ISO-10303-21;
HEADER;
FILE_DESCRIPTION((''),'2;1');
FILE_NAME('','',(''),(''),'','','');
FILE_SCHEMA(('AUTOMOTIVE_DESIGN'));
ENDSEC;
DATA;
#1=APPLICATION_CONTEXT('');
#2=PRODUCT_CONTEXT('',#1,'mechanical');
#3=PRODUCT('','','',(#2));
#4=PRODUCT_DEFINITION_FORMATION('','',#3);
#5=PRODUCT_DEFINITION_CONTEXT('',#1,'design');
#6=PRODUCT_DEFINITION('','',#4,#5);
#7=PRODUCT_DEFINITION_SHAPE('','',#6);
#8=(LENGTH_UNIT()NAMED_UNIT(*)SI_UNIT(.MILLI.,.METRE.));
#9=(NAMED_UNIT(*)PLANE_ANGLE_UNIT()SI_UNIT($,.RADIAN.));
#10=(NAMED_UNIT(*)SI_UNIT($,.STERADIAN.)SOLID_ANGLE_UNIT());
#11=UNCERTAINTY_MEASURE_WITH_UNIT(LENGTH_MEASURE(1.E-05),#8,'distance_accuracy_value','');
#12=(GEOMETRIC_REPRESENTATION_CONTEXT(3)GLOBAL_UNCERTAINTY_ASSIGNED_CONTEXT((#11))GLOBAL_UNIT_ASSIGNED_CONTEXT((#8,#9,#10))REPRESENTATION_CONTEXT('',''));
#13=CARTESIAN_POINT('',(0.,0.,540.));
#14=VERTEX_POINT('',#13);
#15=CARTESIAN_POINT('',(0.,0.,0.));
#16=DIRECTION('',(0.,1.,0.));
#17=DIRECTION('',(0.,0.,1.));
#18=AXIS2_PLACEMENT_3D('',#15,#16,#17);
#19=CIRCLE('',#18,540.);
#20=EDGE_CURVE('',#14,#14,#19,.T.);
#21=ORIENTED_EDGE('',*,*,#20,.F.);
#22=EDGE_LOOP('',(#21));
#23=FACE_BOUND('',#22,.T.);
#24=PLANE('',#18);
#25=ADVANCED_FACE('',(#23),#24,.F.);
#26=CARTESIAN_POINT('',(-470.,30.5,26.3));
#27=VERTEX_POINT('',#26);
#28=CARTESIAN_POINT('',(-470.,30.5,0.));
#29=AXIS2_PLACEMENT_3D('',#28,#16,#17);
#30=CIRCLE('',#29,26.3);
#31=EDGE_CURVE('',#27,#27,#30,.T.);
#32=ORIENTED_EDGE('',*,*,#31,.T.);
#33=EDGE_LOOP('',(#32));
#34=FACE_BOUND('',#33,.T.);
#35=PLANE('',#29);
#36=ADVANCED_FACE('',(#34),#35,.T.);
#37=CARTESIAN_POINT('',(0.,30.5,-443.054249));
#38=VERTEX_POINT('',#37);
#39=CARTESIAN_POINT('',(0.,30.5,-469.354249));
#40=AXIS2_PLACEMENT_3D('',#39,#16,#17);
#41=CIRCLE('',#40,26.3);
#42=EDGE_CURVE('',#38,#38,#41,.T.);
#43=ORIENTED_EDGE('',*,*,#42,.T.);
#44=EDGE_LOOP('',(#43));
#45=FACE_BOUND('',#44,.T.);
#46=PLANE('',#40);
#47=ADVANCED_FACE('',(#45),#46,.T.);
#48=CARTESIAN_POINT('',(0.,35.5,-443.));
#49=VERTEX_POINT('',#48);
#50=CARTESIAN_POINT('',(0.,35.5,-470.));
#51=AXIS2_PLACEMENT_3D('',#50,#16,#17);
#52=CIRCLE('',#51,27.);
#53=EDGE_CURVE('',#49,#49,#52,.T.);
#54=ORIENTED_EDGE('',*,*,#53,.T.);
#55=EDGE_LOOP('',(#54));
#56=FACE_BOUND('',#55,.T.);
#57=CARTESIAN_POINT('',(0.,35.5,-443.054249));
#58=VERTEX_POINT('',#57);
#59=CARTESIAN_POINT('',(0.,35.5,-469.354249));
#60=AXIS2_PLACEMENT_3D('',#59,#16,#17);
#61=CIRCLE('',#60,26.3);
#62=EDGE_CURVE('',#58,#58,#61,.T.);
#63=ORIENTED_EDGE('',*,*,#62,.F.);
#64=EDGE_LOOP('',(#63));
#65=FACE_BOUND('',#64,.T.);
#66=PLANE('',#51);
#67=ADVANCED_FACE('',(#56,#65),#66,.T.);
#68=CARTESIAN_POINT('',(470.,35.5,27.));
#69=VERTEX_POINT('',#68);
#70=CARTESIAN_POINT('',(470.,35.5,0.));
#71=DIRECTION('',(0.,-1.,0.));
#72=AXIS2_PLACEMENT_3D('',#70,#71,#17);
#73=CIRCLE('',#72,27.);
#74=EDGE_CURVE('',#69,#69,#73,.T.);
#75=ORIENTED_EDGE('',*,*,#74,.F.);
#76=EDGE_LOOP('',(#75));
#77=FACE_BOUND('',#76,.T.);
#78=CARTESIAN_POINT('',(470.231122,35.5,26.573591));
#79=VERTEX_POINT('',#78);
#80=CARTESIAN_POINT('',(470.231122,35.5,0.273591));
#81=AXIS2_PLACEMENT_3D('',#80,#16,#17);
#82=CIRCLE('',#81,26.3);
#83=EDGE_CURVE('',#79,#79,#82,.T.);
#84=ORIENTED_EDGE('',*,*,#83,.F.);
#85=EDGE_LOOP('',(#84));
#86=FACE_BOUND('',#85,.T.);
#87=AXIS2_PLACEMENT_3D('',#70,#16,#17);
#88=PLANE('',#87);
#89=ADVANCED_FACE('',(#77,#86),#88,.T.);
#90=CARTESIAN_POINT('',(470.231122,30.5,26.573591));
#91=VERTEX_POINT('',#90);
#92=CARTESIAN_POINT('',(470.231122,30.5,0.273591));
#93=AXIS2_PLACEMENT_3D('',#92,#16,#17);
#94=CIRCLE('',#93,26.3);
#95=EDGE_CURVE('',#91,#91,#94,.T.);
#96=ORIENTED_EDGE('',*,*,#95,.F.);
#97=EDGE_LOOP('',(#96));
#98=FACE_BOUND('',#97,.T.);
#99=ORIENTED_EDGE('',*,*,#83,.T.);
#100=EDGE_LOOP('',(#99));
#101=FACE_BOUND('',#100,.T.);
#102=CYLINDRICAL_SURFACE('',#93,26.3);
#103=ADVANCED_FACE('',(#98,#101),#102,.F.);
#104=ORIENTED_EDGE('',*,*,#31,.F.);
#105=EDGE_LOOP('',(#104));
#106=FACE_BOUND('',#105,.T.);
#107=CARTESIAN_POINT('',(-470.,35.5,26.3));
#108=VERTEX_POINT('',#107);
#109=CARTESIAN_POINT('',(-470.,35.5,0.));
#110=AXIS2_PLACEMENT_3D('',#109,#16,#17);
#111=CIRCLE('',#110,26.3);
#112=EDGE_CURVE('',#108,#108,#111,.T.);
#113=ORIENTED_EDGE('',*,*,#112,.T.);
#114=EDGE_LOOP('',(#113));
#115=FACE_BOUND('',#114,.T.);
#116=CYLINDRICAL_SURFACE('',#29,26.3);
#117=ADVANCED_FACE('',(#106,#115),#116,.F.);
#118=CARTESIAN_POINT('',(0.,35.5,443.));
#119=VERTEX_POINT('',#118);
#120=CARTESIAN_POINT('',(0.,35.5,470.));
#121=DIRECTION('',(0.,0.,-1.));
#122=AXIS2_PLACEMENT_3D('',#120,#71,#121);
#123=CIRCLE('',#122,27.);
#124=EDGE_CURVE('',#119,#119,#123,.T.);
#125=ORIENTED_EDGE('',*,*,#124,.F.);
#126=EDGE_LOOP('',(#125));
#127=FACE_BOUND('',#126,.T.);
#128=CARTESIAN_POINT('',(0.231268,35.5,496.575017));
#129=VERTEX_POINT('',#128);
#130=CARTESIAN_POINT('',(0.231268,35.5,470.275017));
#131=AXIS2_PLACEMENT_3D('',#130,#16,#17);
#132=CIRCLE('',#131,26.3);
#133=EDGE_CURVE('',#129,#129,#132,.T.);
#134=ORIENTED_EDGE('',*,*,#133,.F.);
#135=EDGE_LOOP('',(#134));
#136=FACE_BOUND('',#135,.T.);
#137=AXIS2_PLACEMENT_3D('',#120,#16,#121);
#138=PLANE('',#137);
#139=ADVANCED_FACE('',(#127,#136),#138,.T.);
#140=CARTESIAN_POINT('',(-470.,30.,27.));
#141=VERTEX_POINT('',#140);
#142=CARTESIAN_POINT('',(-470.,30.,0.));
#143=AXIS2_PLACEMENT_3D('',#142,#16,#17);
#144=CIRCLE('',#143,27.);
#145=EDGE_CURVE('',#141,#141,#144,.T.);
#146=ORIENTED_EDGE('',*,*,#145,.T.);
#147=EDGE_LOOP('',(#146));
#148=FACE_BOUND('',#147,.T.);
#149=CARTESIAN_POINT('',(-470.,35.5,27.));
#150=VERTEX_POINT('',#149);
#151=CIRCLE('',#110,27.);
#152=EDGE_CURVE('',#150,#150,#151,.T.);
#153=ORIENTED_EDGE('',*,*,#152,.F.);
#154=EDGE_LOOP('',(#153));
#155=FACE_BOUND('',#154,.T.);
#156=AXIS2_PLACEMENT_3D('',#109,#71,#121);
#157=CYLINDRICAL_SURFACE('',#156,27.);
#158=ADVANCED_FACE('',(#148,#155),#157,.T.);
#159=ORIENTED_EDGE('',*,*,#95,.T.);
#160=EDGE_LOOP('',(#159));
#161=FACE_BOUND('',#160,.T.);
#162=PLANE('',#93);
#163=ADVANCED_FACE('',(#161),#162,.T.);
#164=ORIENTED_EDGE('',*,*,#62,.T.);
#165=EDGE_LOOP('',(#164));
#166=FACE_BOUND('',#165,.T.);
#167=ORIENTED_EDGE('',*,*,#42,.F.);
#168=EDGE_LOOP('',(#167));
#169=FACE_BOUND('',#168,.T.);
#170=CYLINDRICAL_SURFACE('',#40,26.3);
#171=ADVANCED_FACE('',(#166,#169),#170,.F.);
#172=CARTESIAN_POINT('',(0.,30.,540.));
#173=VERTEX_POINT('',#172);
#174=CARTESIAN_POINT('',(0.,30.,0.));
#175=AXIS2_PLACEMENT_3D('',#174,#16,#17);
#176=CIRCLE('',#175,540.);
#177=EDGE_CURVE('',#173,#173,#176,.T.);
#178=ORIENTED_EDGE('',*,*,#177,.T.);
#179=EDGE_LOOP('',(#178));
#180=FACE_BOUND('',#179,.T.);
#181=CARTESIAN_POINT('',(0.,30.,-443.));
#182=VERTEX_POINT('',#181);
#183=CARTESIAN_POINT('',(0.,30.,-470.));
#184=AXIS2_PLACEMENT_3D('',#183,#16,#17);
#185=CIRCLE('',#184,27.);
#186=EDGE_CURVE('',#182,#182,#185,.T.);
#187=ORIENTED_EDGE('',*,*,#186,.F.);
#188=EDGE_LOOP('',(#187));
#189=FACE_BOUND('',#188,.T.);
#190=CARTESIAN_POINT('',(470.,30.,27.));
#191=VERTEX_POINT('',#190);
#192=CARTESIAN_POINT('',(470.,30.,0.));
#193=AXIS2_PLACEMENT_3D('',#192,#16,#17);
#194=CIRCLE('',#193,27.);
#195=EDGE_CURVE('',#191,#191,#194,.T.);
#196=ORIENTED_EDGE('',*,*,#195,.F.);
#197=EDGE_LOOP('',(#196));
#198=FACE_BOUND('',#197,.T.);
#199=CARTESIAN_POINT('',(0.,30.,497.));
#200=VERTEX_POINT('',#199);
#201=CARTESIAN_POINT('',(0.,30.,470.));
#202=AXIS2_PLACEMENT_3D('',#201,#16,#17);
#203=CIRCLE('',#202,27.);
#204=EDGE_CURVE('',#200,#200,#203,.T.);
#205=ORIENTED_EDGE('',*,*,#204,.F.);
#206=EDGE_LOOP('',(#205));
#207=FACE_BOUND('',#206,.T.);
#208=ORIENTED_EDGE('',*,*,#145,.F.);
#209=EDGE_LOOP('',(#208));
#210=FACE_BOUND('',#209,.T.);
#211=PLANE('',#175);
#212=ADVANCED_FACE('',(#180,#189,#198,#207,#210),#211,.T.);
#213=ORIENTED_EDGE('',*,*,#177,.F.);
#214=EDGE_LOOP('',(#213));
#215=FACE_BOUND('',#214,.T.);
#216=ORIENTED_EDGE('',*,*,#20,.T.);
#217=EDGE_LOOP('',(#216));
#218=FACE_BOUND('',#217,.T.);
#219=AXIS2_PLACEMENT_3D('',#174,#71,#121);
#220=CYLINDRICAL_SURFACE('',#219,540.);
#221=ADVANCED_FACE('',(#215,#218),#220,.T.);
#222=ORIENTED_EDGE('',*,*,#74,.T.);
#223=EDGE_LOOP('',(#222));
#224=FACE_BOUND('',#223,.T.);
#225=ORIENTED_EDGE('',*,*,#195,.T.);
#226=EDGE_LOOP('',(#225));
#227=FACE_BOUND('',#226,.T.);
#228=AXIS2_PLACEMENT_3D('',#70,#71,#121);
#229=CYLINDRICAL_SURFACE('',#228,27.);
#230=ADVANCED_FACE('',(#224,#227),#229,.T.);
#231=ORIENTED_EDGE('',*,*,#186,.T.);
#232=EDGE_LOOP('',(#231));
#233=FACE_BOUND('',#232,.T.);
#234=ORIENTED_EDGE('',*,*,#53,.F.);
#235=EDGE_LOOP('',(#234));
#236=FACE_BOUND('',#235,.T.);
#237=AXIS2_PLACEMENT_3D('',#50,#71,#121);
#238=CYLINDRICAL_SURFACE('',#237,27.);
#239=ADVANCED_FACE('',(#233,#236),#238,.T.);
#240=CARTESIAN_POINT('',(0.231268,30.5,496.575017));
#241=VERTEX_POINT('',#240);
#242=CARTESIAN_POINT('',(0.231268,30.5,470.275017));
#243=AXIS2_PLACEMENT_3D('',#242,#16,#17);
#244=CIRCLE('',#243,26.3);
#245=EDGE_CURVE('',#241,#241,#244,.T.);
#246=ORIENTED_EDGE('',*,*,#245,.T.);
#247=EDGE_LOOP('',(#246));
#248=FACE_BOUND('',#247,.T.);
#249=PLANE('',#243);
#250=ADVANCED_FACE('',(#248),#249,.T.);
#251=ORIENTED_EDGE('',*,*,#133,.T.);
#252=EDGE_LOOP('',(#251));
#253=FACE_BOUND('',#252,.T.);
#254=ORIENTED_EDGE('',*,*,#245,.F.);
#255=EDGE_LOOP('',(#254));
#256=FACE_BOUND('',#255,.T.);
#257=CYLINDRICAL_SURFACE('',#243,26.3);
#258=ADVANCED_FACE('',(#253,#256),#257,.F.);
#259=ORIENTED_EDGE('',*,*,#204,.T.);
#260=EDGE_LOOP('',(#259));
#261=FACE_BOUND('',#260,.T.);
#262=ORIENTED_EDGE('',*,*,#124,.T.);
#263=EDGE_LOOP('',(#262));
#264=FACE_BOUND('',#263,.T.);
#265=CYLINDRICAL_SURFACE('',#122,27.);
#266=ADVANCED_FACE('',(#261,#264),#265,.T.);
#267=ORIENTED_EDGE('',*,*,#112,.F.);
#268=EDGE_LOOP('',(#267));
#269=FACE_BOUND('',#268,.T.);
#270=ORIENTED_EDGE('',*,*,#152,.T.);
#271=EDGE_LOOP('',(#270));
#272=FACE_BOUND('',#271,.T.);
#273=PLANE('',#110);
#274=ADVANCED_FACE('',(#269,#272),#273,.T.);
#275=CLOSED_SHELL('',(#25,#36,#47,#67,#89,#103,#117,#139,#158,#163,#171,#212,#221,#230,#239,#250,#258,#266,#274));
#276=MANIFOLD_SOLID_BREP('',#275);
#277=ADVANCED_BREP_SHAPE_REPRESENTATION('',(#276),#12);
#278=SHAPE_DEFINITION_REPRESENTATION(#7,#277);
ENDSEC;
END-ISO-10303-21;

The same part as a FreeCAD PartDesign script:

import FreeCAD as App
import Part
import Sketcher

V = App.Vector
Q = App.Units.Quantity

doc = App.newDocument("Part")
body = doc.addObject("PartDesign::Body", "Body")

sketch1 = body.newObject("Sketcher::SketchObject", "Sketch")
sketch1.AttachmentSupport = (doc.getObject("XZ_Plane"), [""])
sketch1.MapMode = "FlatFace"
sketch1.addGeometry(Part.Circle(V(0, 0, 0), V(0, 0, 1), 540), False)
sketch1.addConstraint([
    Sketcher.Constraint("Coincident", 0, 3, -1, 1),
    Sketcher.Constraint("Diameter", 0, Q("1080 mm")),
])
pad1 = body.newObject("PartDesign::Pad", "Pad")
pad1.Profile = sketch1
pad1.Length = 30
pad1.Reversed = True

sketch2 = body.newObject("Sketcher::SketchObject", "Sketch001")
sketch2.AttachmentSupport = (doc.getObject("XZ_Plane"), [""])
sketch2.MapMode = "FlatFace"
sketch2.AttachmentOffset = App.Placement(V(0, 0, -30), App.Rotation())
sketch2.addGeometry(Part.Circle(V(-470, 0, 0), V(0, 0, 1), 27), False)
sketch2.addConstraint([
    Sketcher.Constraint("PointOnObject", 0, 3, -1),
    Sketcher.Constraint("Diameter", 0, Q("54 mm")),
    Sketcher.Constraint("DistanceX", 0, 3, -1, 1, Q("470 mm")),
])
pad2 = body.newObject("PartDesign::Pad", "Pad001")
pad2.Profile = sketch2
pad2.Length = 5.5
pad2.Reversed = True

sketch3 = body.newObject("Sketcher::SketchObject", "Sketch002")
sketch3.AttachmentSupport = (doc.getObject("XZ_Plane"), [""])
sketch3.MapMode = "FlatFace"
sketch3.AttachmentOffset = App.Placement(V(0, 0, -35.5), App.Rotation())
sketch3.addGeometry(Part.Circle(V(-470, 0, 0), V(0, 0, 1), 26.3), False)
sketch3.addConstraint([
    Sketcher.Constraint("PointOnObject", 0, 3, -1),
    Sketcher.Constraint("Diameter", 0, Q("52.6 mm")),
    Sketcher.Constraint("DistanceX", 0, 3, -1, 1, Q("470 mm")),
])
pocket1 = body.newObject("PartDesign::Pocket", "Pocket")
pocket1.Profile = sketch3
pocket1.Length = 5
pocket1.Reversed = True
doc.recompute()

mirrored = body.newObject("PartDesign::Mirrored", "Mirrored")
mirrored.Originals = [pad2]
mirrored.MirrorPlane = (doc.getObject("YZ_Plane"), [""])
body.Tip = mirrored

sketch4 = body.newObject("Sketcher::SketchObject", "Sketch003")
sketch4.AttachmentSupport = (doc.getObject("XZ_Plane"), [""])
sketch4.MapMode = "FlatFace"
sketch4.AttachmentOffset = App.Placement(V(0, 0, -30), App.Rotation())
sketch4.addGeometry(Part.Circle(V(0, -470, 0), V(0, 0, 1), 27), False)
sketch4.addConstraint([
    Sketcher.Constraint("PointOnObject", 0, 3, -2),
    Sketcher.Constraint("Diameter", 0, Q("54 mm")),
    Sketcher.Constraint("DistanceY", 0, 3, -1, 1, Q("470 mm")),
])
pad3 = body.newObject("PartDesign::Pad", "Pad002")
pad3.Profile = sketch4
pad3.Length = 5.5
pad3.Reversed = True

sketch5 = body.newObject("Sketcher::SketchObject", "Sketch004")
sketch5.AttachmentSupport = (doc.getObject("XZ_Plane"), [""])
sketch5.MapMode = "FlatFace"
sketch5.AttachmentOffset = App.Placement(V(0, 0, -35.5), App.Rotation())
sketch5.addGeometry(Part.Circle(V(0, -469.354249, 0), V(0, 0, 1), 26.3), False)
sketch5.addConstraint([
    Sketcher.Constraint("PointOnObject", 0, 3, -2),
    Sketcher.Constraint("Diameter", 0, Q("52.6 mm")),
    Sketcher.Constraint("DistanceY", 0, 3, -1, 1, Q("469.354249 mm")),
])
pocket2 = body.newObject("PartDesign::Pocket", "Pocket001")
pocket2.Profile = sketch5
pocket2.Length = 5
pocket2.Reversed = True
doc.recompute()

mirrored2 = body.newObject("PartDesign::Mirrored", "Mirrored001")
mirrored2.Originals = [pad3]
mirrored2.MirrorPlane = (doc.getObject("XY_Plane"), [""])
body.Tip = mirrored2

sketch6 = body.newObject("Sketcher::SketchObject", "Sketch005")
sketch6.AttachmentSupport = (doc.getObject("XZ_Plane"), [""])
sketch6.MapMode = "FlatFace"
sketch6.AttachmentOffset = App.Placement(V(0, 0, -35.5), App.Rotation())
sketch6.addGeometry(Part.Circle(V(0.231268, 470.275017, 0), V(0, 0, 1), 26.3), False)
sketch6.addConstraint([
    Sketcher.Constraint("Diameter", 0, Q("52.6 mm")),
    Sketcher.Constraint("DistanceX", -1, 1, 0, 3, Q("0.231268 mm")),
    Sketcher.Constraint("DistanceY", -1, 1, 0, 3, Q("470.275017 mm")),
])
pocket3 = body.newObject("PartDesign::Pocket", "Pocket002")
pocket3.Profile = sketch6
pocket3.Length = 5
pocket3.Reversed = True

sketch7 = body.newObject("Sketcher::SketchObject", "Sketch006")
sketch7.AttachmentSupport = (doc.getObject("XZ_Plane"), [""])
sketch7.MapMode = "FlatFace"
sketch7.AttachmentOffset = App.Placement(V(0, 0, -35.5), App.Rotation())
sketch7.addGeometry(Part.Circle(V(470.231122, 0.273591, 0), V(0, 0, 1), 26.3), False)
sketch7.addConstraint([
    Sketcher.Constraint("Diameter", 0, Q("52.6 mm")),
    Sketcher.Constraint("DistanceX", -1, 1, 0, 3, Q("470.231122 mm")),
    Sketcher.Constraint("DistanceY", -1, 1, 0, 3, Q("0.273591 mm")),
])
pocket4 = body.newObject("PartDesign::Pocket", "Pocket003")
pocket4.Profile = sketch7
pocket4.Length = 5
pocket4.Reversed = True

doc.recompute()
